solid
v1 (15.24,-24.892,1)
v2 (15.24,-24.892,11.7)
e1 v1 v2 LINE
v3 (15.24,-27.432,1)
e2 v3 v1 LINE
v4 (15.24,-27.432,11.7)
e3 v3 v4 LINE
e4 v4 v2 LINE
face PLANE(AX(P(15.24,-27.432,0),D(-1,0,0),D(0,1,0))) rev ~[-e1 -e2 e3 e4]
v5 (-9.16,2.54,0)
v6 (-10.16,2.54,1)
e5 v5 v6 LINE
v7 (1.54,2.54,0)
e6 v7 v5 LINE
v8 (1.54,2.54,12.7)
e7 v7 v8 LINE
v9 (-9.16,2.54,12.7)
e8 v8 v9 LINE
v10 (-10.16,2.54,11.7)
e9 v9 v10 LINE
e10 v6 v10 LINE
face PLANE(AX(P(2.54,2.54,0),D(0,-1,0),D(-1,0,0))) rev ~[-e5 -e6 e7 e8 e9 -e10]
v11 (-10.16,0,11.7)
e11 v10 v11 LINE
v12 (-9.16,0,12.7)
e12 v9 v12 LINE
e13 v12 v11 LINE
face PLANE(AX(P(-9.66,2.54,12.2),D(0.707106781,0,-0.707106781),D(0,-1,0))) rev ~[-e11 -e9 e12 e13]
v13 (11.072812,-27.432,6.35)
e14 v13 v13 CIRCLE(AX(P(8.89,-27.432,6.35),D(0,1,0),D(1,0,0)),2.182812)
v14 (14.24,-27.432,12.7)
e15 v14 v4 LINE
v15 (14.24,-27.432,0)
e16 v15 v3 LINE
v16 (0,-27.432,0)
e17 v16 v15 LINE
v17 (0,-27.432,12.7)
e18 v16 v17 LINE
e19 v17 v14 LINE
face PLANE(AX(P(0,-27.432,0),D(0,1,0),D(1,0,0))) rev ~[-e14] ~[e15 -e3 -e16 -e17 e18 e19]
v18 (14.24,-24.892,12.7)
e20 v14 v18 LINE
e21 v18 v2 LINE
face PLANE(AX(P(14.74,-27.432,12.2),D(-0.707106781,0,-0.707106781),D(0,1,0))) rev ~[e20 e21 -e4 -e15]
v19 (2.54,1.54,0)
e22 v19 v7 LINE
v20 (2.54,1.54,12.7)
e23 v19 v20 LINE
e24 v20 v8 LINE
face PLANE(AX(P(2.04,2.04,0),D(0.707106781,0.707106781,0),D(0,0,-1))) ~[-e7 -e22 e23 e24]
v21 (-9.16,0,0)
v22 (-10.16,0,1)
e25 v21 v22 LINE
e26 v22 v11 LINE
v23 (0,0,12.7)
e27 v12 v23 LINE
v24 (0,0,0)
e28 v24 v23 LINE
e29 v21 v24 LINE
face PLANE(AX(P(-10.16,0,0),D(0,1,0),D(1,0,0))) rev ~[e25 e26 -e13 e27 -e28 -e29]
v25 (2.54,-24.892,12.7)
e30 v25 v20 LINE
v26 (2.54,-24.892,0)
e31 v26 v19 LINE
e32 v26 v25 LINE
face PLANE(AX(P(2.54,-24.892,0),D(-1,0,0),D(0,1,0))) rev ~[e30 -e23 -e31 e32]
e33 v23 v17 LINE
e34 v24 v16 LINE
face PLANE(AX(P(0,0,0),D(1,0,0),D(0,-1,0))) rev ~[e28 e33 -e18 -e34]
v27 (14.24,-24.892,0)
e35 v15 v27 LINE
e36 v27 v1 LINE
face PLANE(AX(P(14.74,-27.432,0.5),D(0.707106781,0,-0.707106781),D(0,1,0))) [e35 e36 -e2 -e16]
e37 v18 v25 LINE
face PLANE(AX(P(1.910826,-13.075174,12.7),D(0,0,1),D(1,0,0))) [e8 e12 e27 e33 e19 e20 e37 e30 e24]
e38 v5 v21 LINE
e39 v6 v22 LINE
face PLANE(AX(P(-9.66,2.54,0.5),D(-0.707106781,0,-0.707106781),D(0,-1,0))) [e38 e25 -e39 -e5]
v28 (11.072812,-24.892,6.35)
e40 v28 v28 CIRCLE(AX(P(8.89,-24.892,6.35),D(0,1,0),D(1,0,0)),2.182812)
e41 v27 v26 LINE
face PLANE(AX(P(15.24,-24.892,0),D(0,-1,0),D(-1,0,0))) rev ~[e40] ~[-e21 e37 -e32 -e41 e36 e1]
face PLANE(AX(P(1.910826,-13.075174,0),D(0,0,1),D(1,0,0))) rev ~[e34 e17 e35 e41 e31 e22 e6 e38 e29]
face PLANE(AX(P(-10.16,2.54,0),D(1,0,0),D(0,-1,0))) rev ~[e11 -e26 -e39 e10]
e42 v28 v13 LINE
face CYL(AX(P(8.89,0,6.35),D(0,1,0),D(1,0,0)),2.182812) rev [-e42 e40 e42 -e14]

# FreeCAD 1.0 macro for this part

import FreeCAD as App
import Part
import Sketcher
Q = App.Units.Quantity


def edges_at(feature, points):
    """Names of the edges that pass closest to the given points."""
    edges = feature.Shape.Edges
    near = lambda p: min(range(len(edges)), key=lambda i: edges[i].distToShape(Part.Vertex(*p))[0])
    return sorted({f"Edge{near(p) + 1}" for p in points})


def add_polygon(sketch, points):
    """Adds a closed chain of lines whose ends are joined by coincident constraints."""
    first, n = sketch.GeometryCount, len(points)
    for a, b in zip(points, points[1:] + points[:1]):
        sketch.addGeometry(Part.LineSegment(App.Vector(*a, 0), App.Vector(*b, 0)), False)
    for i in range(n):
        sketch.addConstraint(Sketcher.Constraint("Coincident", first + i, 2, first + (i + 1) % n, 1))

doc = App.newDocument("Part")
body = doc.addObject("PartDesign::Body", "Body")

sketch1 = body.newObject("Sketcher::SketchObject", "Sketch")
sketch1.AttachmentSupport = (doc.getObject("XY_Plane"), [""])
sketch1.MapMode = "FlatFace"
add_polygon(sketch1, [(0, -27.4), (15.2, -27.4), (15.2, -24.9), (2.5, -24.9), (2.5, 2.5), (-10.2, 2.5), (-10.2, 0), (0, 0)])
sketch1.addConstraint(Sketcher.Constraint("Horizontal", 0))
sketch1.addConstraint(Sketcher.Constraint("Vertical", 1))
sketch1.addConstraint(Sketcher.Constraint("Horizontal", 2))
sketch1.addConstraint(Sketcher.Constraint("Vertical", 3))
sketch1.addConstraint(Sketcher.Constraint("Horizontal", 4))
sketch1.addConstraint(Sketcher.Constraint("Vertical", 5))
sketch1.addConstraint(Sketcher.Constraint("Horizontal", 6))
sketch1.addConstraint(Sketcher.Constraint("Vertical", 7))
sketch1.addConstraint(Sketcher.Constraint("Coincident", 6, 2, -1, 1))
sketch1.addConstraint(Sketcher.Constraint("Equal", 2, 4))
sketch1.addConstraint(Sketcher.Constraint("Equal", 1, 5))
sketch1.addConstraint(Sketcher.Constraint("DistanceX", 0, 1, 0, 2, Q("0.6 in")))
sketch1.addConstraint(Sketcher.Constraint("DistanceX", 2, 2, 2, 1, Q("0.5 in")))
sketch1.addConstraint(Sketcher.Constraint("DistanceY", 1, 1, 1, 2, Q("0.1 in")))
sketch1.addConstraint(Sketcher.Constraint("DistanceY", 3, 1, 3, 2, Q("1.08 in")))
pad1 = body.newObject("PartDesign::Pad", "Pad")
pad1.Profile = sketch1
pad1.Length = Q("0.5 in")

sketch2 = body.newObject("Sketcher::SketchObject", "Sketch001")
sketch2.AttachmentSupport = (doc.getObject("XZ_Plane"), [""])
sketch2.MapMode = "FlatFace"
sketch2.addGeometry(Part.Circle(App.Vector(8.9, 6.3, 0), App.Vector(0, 0, 1), 2.2), False)
sketch2.addGeometry(Part.Circle(App.Vector(-3.8, 6.3, 0), App.Vector(0, 0, 1), 2.2), False)
sketch2.addConstraint(Sketcher.Constraint("Equal", 0, 1))
sketch2.addConstraint(Sketcher.Constraint("Horizontal", 0, 3, 1, 3))
sketch2.addConstraint(Sketcher.Constraint("Diameter", 0, Q("0.171875 in")))
sketch2.addConstraint(Sketcher.Constraint("DistanceX", 1, 3, 0, 3, Q("0.5 in")))
sketch2.addConstraint(Sketcher.Constraint("DistanceX", -1, 1, 0, 3, Q("0.35 in")))
sketch2.addConstraint(Sketcher.Constraint("DistanceY", -1, 1, 0, 3, Q("0.25 in")))
pocket1 = body.newObject("PartDesign::Pocket", "Pocket")
pocket1.Profile = sketch2
pocket1.Type = "ThroughAll"
pocket1.Reversed = True
doc.recompute()

chamfer = body.newObject("PartDesign::Chamfer", "Chamfer")
chamfer.Base = (pocket1, edges_at(pocket1, [
    (-10.16, 1.27, 0),
    (-10.16, 1.27, 12.7),
    (2.54, 2.54, 6.35),
    (15.24, -26.162, 0),
    (15.24, -26.162, 12.7),
]))
chamfer.Size = 1

doc.recompute()
